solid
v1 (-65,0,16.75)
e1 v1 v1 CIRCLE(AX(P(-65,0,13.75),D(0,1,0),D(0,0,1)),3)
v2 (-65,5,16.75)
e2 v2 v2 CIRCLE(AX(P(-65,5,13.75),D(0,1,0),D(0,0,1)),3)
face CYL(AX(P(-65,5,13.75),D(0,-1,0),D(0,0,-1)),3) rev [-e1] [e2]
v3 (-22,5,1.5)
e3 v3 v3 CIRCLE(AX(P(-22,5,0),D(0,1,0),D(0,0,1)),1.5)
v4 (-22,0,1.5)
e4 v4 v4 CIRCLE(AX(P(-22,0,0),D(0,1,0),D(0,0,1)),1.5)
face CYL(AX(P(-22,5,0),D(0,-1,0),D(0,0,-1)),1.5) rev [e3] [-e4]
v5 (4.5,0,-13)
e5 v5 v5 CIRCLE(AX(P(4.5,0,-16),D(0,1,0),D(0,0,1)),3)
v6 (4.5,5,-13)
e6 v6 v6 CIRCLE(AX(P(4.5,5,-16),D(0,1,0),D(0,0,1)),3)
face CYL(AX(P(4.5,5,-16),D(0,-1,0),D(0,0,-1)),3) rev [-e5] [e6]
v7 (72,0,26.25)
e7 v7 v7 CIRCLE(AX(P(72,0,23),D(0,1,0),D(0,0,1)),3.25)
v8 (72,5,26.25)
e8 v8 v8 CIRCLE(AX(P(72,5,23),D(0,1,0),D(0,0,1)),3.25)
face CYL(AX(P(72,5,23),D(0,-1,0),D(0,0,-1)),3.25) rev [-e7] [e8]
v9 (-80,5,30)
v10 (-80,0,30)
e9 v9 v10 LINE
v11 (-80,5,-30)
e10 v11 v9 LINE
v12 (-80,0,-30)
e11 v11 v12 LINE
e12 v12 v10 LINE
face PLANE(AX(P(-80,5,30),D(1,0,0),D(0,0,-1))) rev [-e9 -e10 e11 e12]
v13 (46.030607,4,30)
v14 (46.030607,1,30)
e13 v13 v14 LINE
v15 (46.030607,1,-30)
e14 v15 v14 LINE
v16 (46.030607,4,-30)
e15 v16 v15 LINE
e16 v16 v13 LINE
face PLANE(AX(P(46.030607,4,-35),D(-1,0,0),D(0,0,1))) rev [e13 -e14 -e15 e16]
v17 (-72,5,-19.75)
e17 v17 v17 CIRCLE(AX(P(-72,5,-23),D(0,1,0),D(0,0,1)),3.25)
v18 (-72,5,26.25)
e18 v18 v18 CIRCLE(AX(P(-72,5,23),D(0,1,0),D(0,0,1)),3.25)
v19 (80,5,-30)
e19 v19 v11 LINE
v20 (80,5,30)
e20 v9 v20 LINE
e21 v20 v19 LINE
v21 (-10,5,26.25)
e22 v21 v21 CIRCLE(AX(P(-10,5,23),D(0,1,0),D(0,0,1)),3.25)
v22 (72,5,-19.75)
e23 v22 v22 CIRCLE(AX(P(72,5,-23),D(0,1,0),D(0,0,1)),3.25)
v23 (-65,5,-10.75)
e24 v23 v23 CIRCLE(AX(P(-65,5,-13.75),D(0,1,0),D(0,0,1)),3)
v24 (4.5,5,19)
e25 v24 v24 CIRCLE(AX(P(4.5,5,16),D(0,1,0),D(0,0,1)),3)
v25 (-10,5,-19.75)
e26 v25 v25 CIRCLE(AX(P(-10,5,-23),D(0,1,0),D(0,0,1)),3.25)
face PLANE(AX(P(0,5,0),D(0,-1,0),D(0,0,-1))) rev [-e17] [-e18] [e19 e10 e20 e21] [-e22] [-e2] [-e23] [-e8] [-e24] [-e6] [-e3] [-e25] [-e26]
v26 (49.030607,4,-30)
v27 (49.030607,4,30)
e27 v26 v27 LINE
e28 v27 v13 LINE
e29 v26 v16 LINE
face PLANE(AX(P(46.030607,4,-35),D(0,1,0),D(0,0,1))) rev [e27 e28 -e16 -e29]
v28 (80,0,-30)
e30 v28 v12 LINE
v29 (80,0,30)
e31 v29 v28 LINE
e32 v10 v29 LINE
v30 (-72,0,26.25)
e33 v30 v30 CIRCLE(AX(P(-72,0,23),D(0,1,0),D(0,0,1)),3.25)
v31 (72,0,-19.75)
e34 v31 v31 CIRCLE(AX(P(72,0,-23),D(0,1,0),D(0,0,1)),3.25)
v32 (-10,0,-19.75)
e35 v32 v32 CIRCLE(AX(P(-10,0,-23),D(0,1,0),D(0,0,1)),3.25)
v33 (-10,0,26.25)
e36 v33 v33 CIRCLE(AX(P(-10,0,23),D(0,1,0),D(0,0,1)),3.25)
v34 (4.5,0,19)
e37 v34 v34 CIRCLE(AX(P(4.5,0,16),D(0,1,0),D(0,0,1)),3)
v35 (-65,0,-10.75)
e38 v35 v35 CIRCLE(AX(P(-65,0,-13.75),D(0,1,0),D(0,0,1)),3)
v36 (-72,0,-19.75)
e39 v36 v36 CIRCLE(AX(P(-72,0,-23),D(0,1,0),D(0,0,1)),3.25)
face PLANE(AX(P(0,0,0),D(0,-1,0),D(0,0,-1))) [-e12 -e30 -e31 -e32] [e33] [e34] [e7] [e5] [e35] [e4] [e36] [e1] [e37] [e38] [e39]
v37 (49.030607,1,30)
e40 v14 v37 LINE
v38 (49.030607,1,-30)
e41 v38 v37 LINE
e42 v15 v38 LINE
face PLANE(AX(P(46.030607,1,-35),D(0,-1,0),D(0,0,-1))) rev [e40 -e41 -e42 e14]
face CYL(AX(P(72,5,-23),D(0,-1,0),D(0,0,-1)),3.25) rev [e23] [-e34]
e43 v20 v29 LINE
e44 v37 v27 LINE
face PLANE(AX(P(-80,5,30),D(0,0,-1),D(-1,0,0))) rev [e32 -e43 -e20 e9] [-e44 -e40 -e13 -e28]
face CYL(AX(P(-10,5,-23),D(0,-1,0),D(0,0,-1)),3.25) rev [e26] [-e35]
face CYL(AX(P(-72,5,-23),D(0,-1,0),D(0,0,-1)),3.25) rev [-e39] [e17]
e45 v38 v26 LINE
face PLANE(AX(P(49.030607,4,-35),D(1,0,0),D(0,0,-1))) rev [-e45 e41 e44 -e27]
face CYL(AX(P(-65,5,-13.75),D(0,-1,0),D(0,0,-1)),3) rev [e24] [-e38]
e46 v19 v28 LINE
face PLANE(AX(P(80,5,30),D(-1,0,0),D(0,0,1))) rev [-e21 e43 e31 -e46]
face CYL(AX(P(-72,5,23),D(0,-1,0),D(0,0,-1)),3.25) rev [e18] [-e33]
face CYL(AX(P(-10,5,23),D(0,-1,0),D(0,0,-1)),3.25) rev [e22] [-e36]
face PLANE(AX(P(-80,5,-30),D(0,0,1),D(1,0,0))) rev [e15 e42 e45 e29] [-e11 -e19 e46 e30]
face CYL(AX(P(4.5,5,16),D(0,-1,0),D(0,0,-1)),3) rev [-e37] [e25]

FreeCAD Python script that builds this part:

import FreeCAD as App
import Part
import Sketcher
from FreeCAD import Vector
Q = App.Units.Quantity

doc = App.newDocument("Part")
params = doc.addObject("Spreadsheet::Sheet", "Params")
for row, (alias, value) in enumerate([
    ("sketch1_diameter", "6 mm"),
    ("sketch1_diameter2", "3 mm"),
    ("sketch1_diameter3", "6.5 mm"),
    ("sketch1_width", "160 mm"),
    ("sketch1_height", "60 mm"),
    ("pad1_length", "5 mm"),
    ("sketch2_width", "3 mm"),
    ("pocket1_length", "65 mm"),
], start=1):
    params.set(f"A{row}", alias)
    params.set(f"B{row}", "=" + value)
    params.setAlias(f"B{row}", alias)

body = doc.addObject("PartDesign::Body", "Body")

sketch1 = body.newObject("Sketcher::SketchObject", "Sketch")
sketch1.AttachmentSupport = (doc.getObject("XZ_Plane"), [""])
sketch1.MapMode = "FlatFace"
sketch1.addGeometry(Part.LineSegment(Vector(-80, -30, 0), Vector(-80, 30, 0)), False)
sketch1.addGeometry(Part.LineSegment(Vector(-80, 30, 0), Vector(80, 30, 0)), False)
sketch1.addGeometry(Part.LineSegment(Vector(80, 30, 0), Vector(80, -30, 0)), False)
sketch1.addGeometry(Part.LineSegment(Vector(80, -30, 0), Vector(-80, -30, 0)), False)
sketch1.addGeometry(Part.Circle(Vector(-72, 23, 0), Vector(0, 0, 1), 3.25), False)
sketch1.addGeometry(Part.Circle(Vector(-65, 13.75, 0), Vector(0, 0, 1), 3), False)
sketch1.addGeometry(Part.Circle(Vector(-10, 23, 0), Vector(0, 0, 1), 3.25), False)
sketch1.addGeometry(Part.Circle(Vector(4.5, 16, 0), Vector(0, 0, 1), 3), False)
sketch1.addGeometry(Part.Circle(Vector(72, 23, 0), Vector(0, 0, 1), 3.25), False)
sketch1.addGeometry(Part.Circle(Vector(-22, 0, 0), Vector(0, 0, 1), 1.5), False)
sketch1.addGeometry(Part.Circle(Vector(-65, -13.75, 0), Vector(0, 0, 1), 3), False)
sketch1.addGeometry(Part.Circle(Vector(-72, -23, 0), Vector(0, 0, 1), 3.25), False)
sketch1.addGeometry(Part.Circle(Vector(-10, -23, 0), Vector(0, 0, 1), 3.25), False)
sketch1.addGeometry(Part.Circle(Vector(4.5, -16, 0), Vector(0, 0, 1), 3), False)
sketch1.addGeometry(Part.Circle(Vector(72, -23, 0), Vector(0, 0, 1), 3.25), False)
sketch1.addConstraint(Sketcher.Constraint("Coincident", 0, 2, 1, 1))
sketch1.addConstraint(Sketcher.Constraint("Coincident", 1, 2, 2, 1))
sketch1.addConstraint(Sketcher.Constraint("Coincident", 2, 2, 3, 1))
sketch1.addConstraint(Sketcher.Constraint("Coincident", 3, 2, 0, 1))
sketch1.addConstraint(Sketcher.Constraint("Vertical", 0))
sketch1.addConstraint(Sketcher.Constraint("Horizontal", 1))
sketch1.addConstraint(Sketcher.Constraint("Vertical", 2))
sketch1.addConstraint(Sketcher.Constraint("Horizontal", 3))
sketch1.addConstraint(Sketcher.Constraint("Equal", 4, 6))
sketch1.addConstraint(Sketcher.Constraint("Equal", 5, 7))
sketch1.addConstraint(Sketcher.Constraint("Equal", 6, 8))
sketch1.addConstraint(Sketcher.Constraint("Equal", 7, 10))
sketch1.addConstraint(Sketcher.Constraint("Equal", 8, 11))
sketch1.addConstraint(Sketcher.Constraint("Equal", 11, 12))
sketch1.addConstraint(Sketcher.Constraint("Equal", 10, 13))
sketch1.addConstraint(Sketcher.Constraint("Equal", 12, 14))
sketch1.addConstraint(Sketcher.Constraint("Symmetric", 8, 3, 11, 3, -1, 1))
sketch1.addConstraint(Sketcher.Constraint("Symmetric", 4, 3, 14, 3, -1, 1))
sketch1.addConstraint(Sketcher.Constraint("Symmetric", 0, 2, 2, 2, -1, 1))
sketch1.addConstraint(Sketcher.Constraint("Symmetric", 4, 3, 8, 3, -2))
sketch1.addConstraint(Sketcher.Constraint("Symmetric", 5, 3, 10, 3, -1))
sketch1.addConstraint(Sketcher.Constraint("Symmetric", 6, 3, 12, 3, -1))
sketch1.addConstraint(Sketcher.Constraint("Symmetric", 7, 3, 13, 3, -1))
sketch1.addConstraint(Sketcher.Constraint("PointOnObject", 9, 3, -1))
sketch1.addConstraint(Sketcher.Constraint("Horizontal", 4, 3, 6, 3))
sketch1.addConstraint(Sketcher.Constraint("Diameter", 5, Q("6 mm")))
sketch1.addConstraint(Sketcher.Constraint("Diameter", 9, Q("3 mm")))
sketch1.addConstraint(Sketcher.Constraint("Diameter", 4, Q("6.5 mm")))
sketch1.addConstraint(Sketcher.Constraint("DistanceX", 1, 1, 1, 2, Q("160 mm")))
sketch1.addConstraint(Sketcher.Constraint("DistanceY", 0, 1, 0, 2, Q("60 mm")))
sketch1.addConstraint(Sketcher.Constraint("DistanceX", 4, 3, -1, 1, Q("72 mm")))
sketch1.addConstraint(Sketcher.Constraint("DistanceY", -1, 1, 4, 3, Q("23 mm")))
sketch1.addConstraint(Sketcher.Constraint("DistanceX", 5, 3, -1, 1, Q("65 mm")))
sketch1.addConstraint(Sketcher.Constraint("DistanceX", 6, 3, -1, 1, Q("10 mm")))
sketch1.addConstraint(Sketcher.Constraint("DistanceY", -1, 1, 7, 3, Q("16 mm")))
sketch1.addConstraint(Sketcher.Constraint("DistanceX", 9, 3, -1, 1, Q("22 mm")))
sketch1.addConstraint(Sketcher.Constraint("DistanceX", -1, 1, 7, 3, Q("4.5 mm")))
sketch1.addConstraint(Sketcher.Constraint("DistanceY", 10, 3, 5, 3, Q("27.5 mm")))
sketch1.setExpression("Constraints[25]", "Params.sketch1_diameter")
sketch1.setExpression("Constraints[26]", "Params.sketch1_diameter2")
sketch1.setExpression("Constraints[27]", "Params.sketch1_diameter3")
sketch1.setExpression("Constraints[28]", "Params.sketch1_width")
sketch1.setExpression("Constraints[29]", "Params.sketch1_height")
pad1 = body.newObject("PartDesign::Pad", "Pad")
pad1.Profile = sketch1
pad1.setExpression("Length", "Params.pad1_length")
pad1.Reversed = True

sketch2 = body.newObject("Sketcher::SketchObject", "Sketch001")
sketch2.AttachmentSupport = (doc.getObject("XY_Plane"), [""])
sketch2.MapMode = "FlatFace"
sketch2.AttachmentOffset = App.Placement(Vector(0, 0, 30), App.Rotation())
sketch2.addGeometry(Part.LineSegment(Vector(46.030607, 4, 0), Vector(46.030607, 1, 0)), False)
sketch2.addGeometry(Part.LineSegment(Vector(46.030607, 1, 0), Vector(49.030607, 1, 0)), False)
sketch2.addGeometry(Part.LineSegment(Vector(49.030607, 1, 0), Vector(49.030607, 4, 0)), False)
sketch2.addGeometry(Part.LineSegment(Vector(49.030607, 4, 0), Vector(46.030607, 4, 0)), False)
sketch2.addConstraint(Sketcher.Constraint("Coincident", 0, 2, 1, 1))
sketch2.addConstraint(Sketcher.Constraint("Coincident", 1, 2, 2, 1))
sketch2.addConstraint(Sketcher.Constraint("Coincident", 2, 2, 3, 1))
sketch2.addConstraint(Sketcher.Constraint("Coincident", 3, 2, 0, 1))
sketch2.addConstraint(Sketcher.Constraint("Vertical", 0))
sketch2.addConstraint(Sketcher.Constraint("Horizontal", 1))
sketch2.addConstraint(Sketcher.Constraint("Vertical", 2))
sketch2.addConstraint(Sketcher.Constraint("Horizontal", 3))
sketch2.addConstraint(Sketcher.Constraint("Equal", 3, 0))
sketch2.addConstraint(Sketcher.Constraint("DistanceX", 1, 1, 1, 2, Q("3 mm")))
sketch2.addConstraint(Sketcher.Constraint("DistanceY", -1, 1, 0, 2, Q("1 mm")))
sketch2.addConstraint(Sketcher.Constraint("DistanceX", -1, 1, 0, 2, Q("46.030607 mm")))
sketch2.setExpression("Constraints[9]", "Params.sketch2_width")
pocket1 = body.newObject("PartDesign::Pocket", "Pocket")
pocket1.Profile = sketch2
pocket1.setExpression("Length", "Params.pocket1_length")

doc.recompute()
